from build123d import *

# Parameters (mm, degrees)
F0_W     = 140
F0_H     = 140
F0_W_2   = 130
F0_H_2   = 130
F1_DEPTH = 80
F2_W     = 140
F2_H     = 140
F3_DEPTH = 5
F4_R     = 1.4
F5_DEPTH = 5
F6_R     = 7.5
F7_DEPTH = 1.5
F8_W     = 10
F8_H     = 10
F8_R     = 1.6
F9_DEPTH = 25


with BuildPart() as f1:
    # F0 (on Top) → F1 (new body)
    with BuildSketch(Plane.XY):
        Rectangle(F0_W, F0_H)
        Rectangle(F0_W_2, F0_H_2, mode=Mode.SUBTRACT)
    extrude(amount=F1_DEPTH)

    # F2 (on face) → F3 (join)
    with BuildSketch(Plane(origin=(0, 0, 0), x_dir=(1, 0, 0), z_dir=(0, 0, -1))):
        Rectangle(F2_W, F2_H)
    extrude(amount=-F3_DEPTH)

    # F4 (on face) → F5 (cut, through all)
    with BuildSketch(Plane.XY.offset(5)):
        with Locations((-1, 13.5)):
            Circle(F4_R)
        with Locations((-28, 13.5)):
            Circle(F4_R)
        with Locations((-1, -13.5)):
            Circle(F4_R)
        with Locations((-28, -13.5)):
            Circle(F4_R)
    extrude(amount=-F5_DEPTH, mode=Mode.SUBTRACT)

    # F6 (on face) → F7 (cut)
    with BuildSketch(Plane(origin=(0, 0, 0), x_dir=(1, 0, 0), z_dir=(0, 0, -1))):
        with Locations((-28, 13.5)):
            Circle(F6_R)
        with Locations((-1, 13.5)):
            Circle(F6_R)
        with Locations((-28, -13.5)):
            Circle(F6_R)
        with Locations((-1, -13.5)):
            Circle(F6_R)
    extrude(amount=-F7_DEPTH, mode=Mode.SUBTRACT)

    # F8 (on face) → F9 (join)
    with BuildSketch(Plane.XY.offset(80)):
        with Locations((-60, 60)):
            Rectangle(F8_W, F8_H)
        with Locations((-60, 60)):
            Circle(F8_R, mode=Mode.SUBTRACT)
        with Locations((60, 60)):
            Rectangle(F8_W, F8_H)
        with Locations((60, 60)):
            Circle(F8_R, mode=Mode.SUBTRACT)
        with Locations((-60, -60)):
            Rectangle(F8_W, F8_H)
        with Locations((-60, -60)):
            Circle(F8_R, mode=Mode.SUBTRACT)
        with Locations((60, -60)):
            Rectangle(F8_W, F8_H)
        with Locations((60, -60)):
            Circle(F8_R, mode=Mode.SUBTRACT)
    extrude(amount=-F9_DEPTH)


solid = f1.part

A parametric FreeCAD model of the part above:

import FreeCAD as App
import Part
import Sketcher
from FreeCAD import Vector


def add_polygon(sketch, points):
    """Adds a closed chain of lines whose ends are joined by coincident constraints."""
    first, n = sketch.GeometryCount, len(points)
    for a, b in zip(points, points[1:] + points[:1]):
        sketch.addGeometry(Part.LineSegment(App.Vector(*a, 0), App.Vector(*b, 0)), False)
    for i in range(n):
        sketch.addConstraint(Sketcher.Constraint("Coincident", first + i, 2, first + (i + 1) % n, 1))

doc = App.newDocument("Part")
body = doc.addObject("PartDesign::Body", "Body")

# Sketch on XY plane
sketch1 = body.newObject("Sketcher::SketchObject", "Sketch")
sketch1.AttachmentSupport = (doc.getObject("XY_Plane"), [""])
sketch1.MapMode = "FlatFace"
add_polygon(sketch1, [(-70, 70), (-70, -70), (70, -70), (70, 70)])  # lines 0-3
add_polygon(sketch1, [(65, -65), (-65, -65), (-65, 65), (65, 65)])  # lines 4-7
sketch1.addConstraint(Sketcher.Constraint("Vertical", 0))
sketch1.addConstraint(Sketcher.Constraint("Horizontal", 1))
sketch1.addConstraint(Sketcher.Constraint("Vertical", 2))
sketch1.addConstraint(Sketcher.Constraint("Horizontal", 3))
sketch1.addConstraint(Sketcher.Constraint("Horizontal", 4))
sketch1.addConstraint(Sketcher.Constraint("Vertical", 5))
sketch1.addConstraint(Sketcher.Constraint("Horizontal", 6))
sketch1.addConstraint(Sketcher.Constraint("Vertical", 7))
sketch1.addConstraint(Sketcher.Constraint("Symmetric", 0, 2, 2, 2, -1, 1))
sketch1.addConstraint(Sketcher.Constraint("Symmetric", 4, 2, 6, 2, -1, 1))
sketch1.addConstraint(Sketcher.Constraint("Equal", 3, 0))
sketch1.addConstraint(Sketcher.Constraint("Equal", 6, 5))
sketch1.addConstraint(Sketcher.Constraint("DistanceX", 1, 1, 1, 2, 140.0))
sketch1.addConstraint(Sketcher.Constraint("DistanceX", 4, 2, 4, 1, 130.0))
pad1 = body.newObject("PartDesign::Pad", "Pad")
pad1.Profile = sketch1
pad1.Length = 80

# Sketch on XY plane
sketch2 = body.newObject("Sketcher::SketchObject", "Sketch001")
sketch2.AttachmentSupport = (doc.getObject("XY_Plane"), [""])
sketch2.MapMode = "FlatFace"
add_polygon(sketch2, [(-70, -70), (-70, 70), (70, 70), (70, -70)])  # lines 0-3
sketch2.addConstraint(Sketcher.Constraint("Vertical", 0))
sketch2.addConstraint(Sketcher.Constraint("Horizontal", 1))
sketch2.addConstraint(Sketcher.Constraint("Vertical", 2))
sketch2.addConstraint(Sketcher.Constraint("Horizontal", 3))
sketch2.addConstraint(Sketcher.Constraint("Symmetric", 0, 2, 2, 2, -1, 1))
sketch2.addConstraint(Sketcher.Constraint("Equal", 3, 0))
sketch2.addConstraint(Sketcher.Constraint("DistanceX", 1, 1, 1, 2, 140.0))
pad2 = body.newObject("PartDesign::Pad", "Pad001")
pad2.Profile = sketch2
pad2.Length = 5

# Sketch on XY plane
sketch3 = body.newObject("Sketcher::SketchObject", "Sketch002")
sketch3.AttachmentSupport = (doc.getObject("XY_Plane"), [""])
sketch3.MapMode = "FlatFace"
sketch3.AttachmentOffset = App.Placement(Vector(0, 0, 5), App.Rotation())
sketch3.addGeometry(Part.Circle(Vector(-1, 13.5, 0), Vector(0, 0, 1), 1.4), False)
sketch3.addGeometry(Part.Circle(Vector(-28, 13.5, 0), Vector(0, 0, 1), 1.4), False)
sketch3.addGeometry(Part.Circle(Vector(-1, -13.5, 0), Vector(0, 0, 1), 1.4), False)
sketch3.addGeometry(Part.Circle(Vector(-28, -13.5, 0), Vector(0, 0, 1), 1.4), False)
sketch3.addConstraint(Sketcher.Constraint("Equal", 0, 1))
sketch3.addConstraint(Sketcher.Constraint("Equal", 1, 2))
sketch3.addConstraint(Sketcher.Constraint("Equal", 2, 3))
sketch3.addConstraint(Sketcher.Constraint("Symmetric", 0, 3, 2, 3, -1))
sketch3.addConstraint(Sketcher.Constraint("Symmetric", 1, 3, 3, 3, -1))
sketch3.addConstraint(Sketcher.Constraint("Horizontal", 0, 3, 1, 3))
sketch3.addConstraint(Sketcher.Constraint("Diameter", 0, 2.8))
sketch3.addConstraint(Sketcher.Constraint("DistanceX", 0, 3, -1, 1, 1.0))
sketch3.addConstraint(Sketcher.Constraint("DistanceX", 1, 3, -1, 1, 28.0))
sketch3.addConstraint(Sketcher.Constraint("DistanceY", 2, 3, 0, 3, 27.0))
pocket1 = body.newObject("PartDesign::Pocket", "Pocket")
pocket1.Profile = sketch3
pocket1.Type = "ThroughAll"

# Sketch on XY plane
sketch4 = body.newObject("Sketcher::SketchObject", "Sketch003")
sketch4.AttachmentSupport = (doc.getObject("XY_Plane"), [""])
sketch4.MapMode = "FlatFace"
sketch4.addGeometry(Part.Circle(Vector(-28, -14, 0), Vector(0, 0, 1), 8), False)
sketch4.addGeometry(Part.Circle(Vector(-1, -14, 0), Vector(0, 0, 1), 8), False)
sketch4.addGeometry(Part.Circle(Vector(-28, 14, 0), Vector(0, 0, 1), 8), False)
sketch4.addGeometry(Part.Circle(Vector(-1, 14, 0), Vector(0, 0, 1), 8), False)
sketch4.addConstraint(Sketcher.Constraint("Equal", 0, 1))
sketch4.addConstraint(Sketcher.Constraint("Equal", 1, 2))
sketch4.addConstraint(Sketcher.Constraint("Equal", 2, 3))
sketch4.addConstraint(Sketcher.Constraint("Symmetric", 0, 3, 2, 3, -1))
sketch4.addConstraint(Sketcher.Constraint("Symmetric", 1, 3, 3, 3, -1))
sketch4.addConstraint(Sketcher.Constraint("Horizontal", 0, 3, 1, 3))
sketch4.addConstraint(Sketcher.Constraint("Diameter", 0, 15.0))
sketch4.addConstraint(Sketcher.Constraint("DistanceX", 0, 3, -1, 1, 28.0))
sketch4.addConstraint(Sketcher.Constraint("DistanceX", 1, 3, -1, 1, 1.0))
sketch4.addConstraint(Sketcher.Constraint("DistanceY", 0, 3, 2, 3, 27.0))
pocket2 = body.newObject("PartDesign::Pocket", "Pocket001")
pocket2.Profile = sketch4
pocket2.Length = 1.5
pocket2.Reversed = True

# Sketch on XY plane
sketch5 = body.newObject("Sketcher::SketchObject", "Sketch004")
sketch5.AttachmentSupport = (doc.getObject("XY_Plane"), [""])
sketch5.MapMode = "FlatFace"
sketch5.AttachmentOffset = App.Placement(Vector(0, 0, 80), App.Rotation())
add_polygon(sketch5, [(-65, 65), (-65, 55), (-55, 55), (-55, 65)])  # lines 0-3
sketch5.addGeometry(Part.Circle(Vector(-60, 60, 0), Vector(0, 0, 1), 1.6), False)  # 4
add_polygon(sketch5, [(55, 65), (55, 55), (65, 55), (65, 65)])  # lines 5-8
sketch5.addGeometry(Part.Circle(Vector(60, 60, 0), Vector(0, 0, 1), 1.6), False)  # 9
add_polygon(sketch5, [(-65, -55), (-65, -65), (-55, -65), (-55, -55)])  # lines 10-13
sketch5.addGeometry(Part.Circle(Vector(-60, -60, 0), Vector(0, 0, 1), 1.6), False)  # 14
add_polygon(sketch5, [(55, -55), (55, -65), (65, -65), (65, -55)])  # lines 15-18
sketch5.addGeometry(Part.Circle(Vector(60, -60, 0), Vector(0, 0, 1), 1.6), False)  # 19
sketch5.addConstraint(Sketcher.Constraint("Vertical", 0))
sketch5.addConstraint(Sketcher.Constraint("Horizontal", 1))
sketch5.addConstraint(Sketcher.Constraint("Vertical", 2))
sketch5.addConstraint(Sketcher.Constraint("Horizontal", 3))
sketch5.addConstraint(Sketcher.Constraint("Vertical", 5))
sketch5.addConstraint(Sketcher.Constraint("Horizontal", 6))
sketch5.addConstraint(Sketcher.Constraint("Vertical", 7))
sketch5.addConstraint(Sketcher.Constraint("Horizontal", 8))
sketch5.addConstraint(Sketcher.Constraint("Vertical", 10))
sketch5.addConstraint(Sketcher.Constraint("Horizontal", 11))
sketch5.addConstraint(Sketcher.Constraint("Vertical", 12))
sketch5.addConstraint(Sketcher.Constraint("Horizontal", 13))
sketch5.addConstraint(Sketcher.Constraint("Vertical", 15))
sketch5.addConstraint(Sketcher.Constraint("Horizontal", 16))
sketch5.addConstraint(Sketcher.Constraint("Vertical", 17))
sketch5.addConstraint(Sketcher.Constraint("Horizontal", 18))
sketch5.addConstraint(Sketcher.Constraint("Equal", 4, 9))
sketch5.addConstraint(Sketcher.Constraint("Equal", 9, 14))
sketch5.addConstraint(Sketcher.Constraint("Equal", 14, 19))
sketch5.addConstraint(Sketcher.Constraint("Symmetric", 9, 3, 14, 3, -1, 1))
sketch5.addConstraint(Sketcher.Constraint("Symmetric", 4, 3, 19, 3, -1, 1))
sketch5.addConstraint(Sketcher.Constraint("Symmetric", 7, 2, 10, 2, -1, 1))
sketch5.addConstraint(Sketcher.Constraint("Symmetric", 5, 2, 12, 2, -1, 1))
sketch5.addConstraint(Sketcher.Constraint("Symmetric", 2, 2, 15, 2, -1, 1))
sketch5.addConstraint(Sketcher.Constraint("Symmetric", 0, 2, 17, 2, -1, 1))
sketch5.addConstraint(Sketcher.Constraint("Symmetric", 4, 3, 9, 3, -2))
sketch5.addConstraint(Sketcher.Constraint("Symmetric", 1, 2, 5, 2, -2))
sketch5.addConstraint(Sketcher.Constraint("Symmetric", 3, 2, 7, 2, -2))
sketch5.addConstraint(Sketcher.Constraint("Equal", 18, 0))
sketch5.addConstraint(Sketcher.Constraint("Diameter", 4, 3.2))
sketch5.addConstraint(Sketcher.Constraint("DistanceX", 1, 1, 1, 2, 10.0))
sketch5.addConstraint(Sketcher.Constraint("DistanceX", 4, 3, -1, 1, 60.0))
sketch5.addConstraint(Sketcher.Constraint("DistanceY", -1, 1, 4, 3, 60.0))
sketch5.addConstraint(Sketcher.Constraint("DistanceX", 0, 2, -1, 1, 65.0))
sketch5.addConstraint(Sketcher.Constraint("DistanceY", -1, 1, 0, 2, 55.0))
pad3 = body.newObject("PartDesign::Pad", "Pad002")
pad3.Profile = sketch5
pad3.Length = 25
pad3.Reversed = True

doc.recompute()
